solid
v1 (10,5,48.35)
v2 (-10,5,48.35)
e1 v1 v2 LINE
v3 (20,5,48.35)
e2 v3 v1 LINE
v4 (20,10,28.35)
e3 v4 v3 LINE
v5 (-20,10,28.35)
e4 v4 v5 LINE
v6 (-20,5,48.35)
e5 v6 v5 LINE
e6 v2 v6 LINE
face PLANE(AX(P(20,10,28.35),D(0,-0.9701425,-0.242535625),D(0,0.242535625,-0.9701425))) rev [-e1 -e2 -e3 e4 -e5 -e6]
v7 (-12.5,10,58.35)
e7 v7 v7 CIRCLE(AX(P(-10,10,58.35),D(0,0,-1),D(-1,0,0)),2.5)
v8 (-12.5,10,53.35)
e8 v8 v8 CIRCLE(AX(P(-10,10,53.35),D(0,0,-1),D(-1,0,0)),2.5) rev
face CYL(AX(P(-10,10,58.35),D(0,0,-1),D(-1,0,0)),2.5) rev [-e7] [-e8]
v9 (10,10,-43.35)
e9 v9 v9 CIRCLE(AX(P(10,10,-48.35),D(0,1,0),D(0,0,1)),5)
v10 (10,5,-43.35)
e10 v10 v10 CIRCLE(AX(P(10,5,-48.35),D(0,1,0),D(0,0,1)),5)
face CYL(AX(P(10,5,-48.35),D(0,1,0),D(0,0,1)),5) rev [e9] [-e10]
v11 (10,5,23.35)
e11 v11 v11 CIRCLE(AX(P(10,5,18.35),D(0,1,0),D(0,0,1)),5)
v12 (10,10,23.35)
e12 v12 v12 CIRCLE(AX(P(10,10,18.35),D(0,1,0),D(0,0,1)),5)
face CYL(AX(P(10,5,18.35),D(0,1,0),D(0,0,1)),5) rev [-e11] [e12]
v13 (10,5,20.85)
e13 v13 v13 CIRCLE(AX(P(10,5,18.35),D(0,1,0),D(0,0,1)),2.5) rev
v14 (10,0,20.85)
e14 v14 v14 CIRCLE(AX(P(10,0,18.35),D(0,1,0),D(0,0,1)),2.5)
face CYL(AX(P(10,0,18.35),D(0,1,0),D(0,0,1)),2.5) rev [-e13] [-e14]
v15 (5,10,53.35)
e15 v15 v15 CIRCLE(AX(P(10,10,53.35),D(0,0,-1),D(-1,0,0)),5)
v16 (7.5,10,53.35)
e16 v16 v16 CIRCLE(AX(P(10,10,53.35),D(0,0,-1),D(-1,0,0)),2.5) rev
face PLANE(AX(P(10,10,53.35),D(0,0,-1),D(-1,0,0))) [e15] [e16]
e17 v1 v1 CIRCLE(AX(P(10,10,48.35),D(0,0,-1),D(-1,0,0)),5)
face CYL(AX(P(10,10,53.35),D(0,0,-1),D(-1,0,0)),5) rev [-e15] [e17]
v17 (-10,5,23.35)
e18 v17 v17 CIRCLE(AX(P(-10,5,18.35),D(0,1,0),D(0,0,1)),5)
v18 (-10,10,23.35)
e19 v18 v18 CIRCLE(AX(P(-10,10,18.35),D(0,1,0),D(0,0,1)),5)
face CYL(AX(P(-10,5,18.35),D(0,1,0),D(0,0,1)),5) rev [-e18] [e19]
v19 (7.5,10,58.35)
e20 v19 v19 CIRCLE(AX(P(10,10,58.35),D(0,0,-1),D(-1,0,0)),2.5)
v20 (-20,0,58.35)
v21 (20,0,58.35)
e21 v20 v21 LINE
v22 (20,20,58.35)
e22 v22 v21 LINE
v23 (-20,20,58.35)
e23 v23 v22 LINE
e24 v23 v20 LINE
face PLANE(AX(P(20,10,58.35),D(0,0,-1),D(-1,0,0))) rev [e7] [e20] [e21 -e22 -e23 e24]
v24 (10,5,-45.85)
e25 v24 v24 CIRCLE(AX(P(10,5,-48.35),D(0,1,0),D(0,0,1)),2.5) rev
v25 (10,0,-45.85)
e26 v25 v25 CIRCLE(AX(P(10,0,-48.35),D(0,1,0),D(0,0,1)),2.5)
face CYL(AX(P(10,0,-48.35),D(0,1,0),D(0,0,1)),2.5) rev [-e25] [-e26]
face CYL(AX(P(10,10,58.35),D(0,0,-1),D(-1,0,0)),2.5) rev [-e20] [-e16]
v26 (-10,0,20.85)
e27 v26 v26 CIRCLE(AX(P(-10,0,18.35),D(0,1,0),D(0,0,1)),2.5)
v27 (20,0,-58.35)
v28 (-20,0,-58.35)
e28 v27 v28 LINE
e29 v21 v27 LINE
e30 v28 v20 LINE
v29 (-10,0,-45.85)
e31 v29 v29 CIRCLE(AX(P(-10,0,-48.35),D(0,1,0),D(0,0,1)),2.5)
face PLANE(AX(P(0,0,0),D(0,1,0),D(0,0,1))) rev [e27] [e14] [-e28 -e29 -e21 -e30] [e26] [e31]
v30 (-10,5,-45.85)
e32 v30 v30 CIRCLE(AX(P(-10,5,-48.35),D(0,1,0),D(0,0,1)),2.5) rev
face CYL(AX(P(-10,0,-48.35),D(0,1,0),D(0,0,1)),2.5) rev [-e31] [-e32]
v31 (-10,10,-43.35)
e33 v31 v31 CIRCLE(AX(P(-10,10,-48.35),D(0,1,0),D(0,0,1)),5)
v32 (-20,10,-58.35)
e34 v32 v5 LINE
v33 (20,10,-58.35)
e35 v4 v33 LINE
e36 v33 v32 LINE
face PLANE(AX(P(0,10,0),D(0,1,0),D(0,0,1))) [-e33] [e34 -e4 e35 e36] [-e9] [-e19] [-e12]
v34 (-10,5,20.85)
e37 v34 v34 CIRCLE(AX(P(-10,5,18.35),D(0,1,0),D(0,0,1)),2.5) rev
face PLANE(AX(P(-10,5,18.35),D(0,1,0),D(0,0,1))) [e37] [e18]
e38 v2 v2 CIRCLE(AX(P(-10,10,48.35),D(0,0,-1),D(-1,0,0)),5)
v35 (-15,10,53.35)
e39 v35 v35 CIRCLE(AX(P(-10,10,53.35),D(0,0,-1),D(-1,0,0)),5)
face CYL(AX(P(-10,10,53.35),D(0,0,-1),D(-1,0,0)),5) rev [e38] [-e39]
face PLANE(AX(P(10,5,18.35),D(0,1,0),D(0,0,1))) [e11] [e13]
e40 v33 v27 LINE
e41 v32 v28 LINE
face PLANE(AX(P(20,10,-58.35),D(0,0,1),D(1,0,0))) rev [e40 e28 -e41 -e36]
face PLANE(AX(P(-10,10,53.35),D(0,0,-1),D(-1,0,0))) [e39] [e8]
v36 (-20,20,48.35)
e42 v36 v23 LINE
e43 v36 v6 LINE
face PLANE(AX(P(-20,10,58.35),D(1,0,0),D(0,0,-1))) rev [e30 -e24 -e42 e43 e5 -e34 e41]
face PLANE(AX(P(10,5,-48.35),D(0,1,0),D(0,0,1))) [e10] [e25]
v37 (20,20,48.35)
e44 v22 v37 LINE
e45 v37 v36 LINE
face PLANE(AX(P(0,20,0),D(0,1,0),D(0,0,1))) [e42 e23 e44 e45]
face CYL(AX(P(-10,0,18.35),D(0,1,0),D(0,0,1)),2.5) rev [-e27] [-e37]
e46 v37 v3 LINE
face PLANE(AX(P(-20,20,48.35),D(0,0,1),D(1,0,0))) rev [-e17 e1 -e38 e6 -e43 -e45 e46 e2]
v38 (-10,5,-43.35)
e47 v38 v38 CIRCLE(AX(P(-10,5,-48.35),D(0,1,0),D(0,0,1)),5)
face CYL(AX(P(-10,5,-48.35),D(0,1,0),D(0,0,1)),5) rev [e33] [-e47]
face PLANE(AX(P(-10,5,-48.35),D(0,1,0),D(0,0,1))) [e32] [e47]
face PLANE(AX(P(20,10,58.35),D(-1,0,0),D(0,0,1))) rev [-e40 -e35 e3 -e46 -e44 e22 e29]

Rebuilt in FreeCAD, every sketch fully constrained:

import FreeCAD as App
import Part
import Sketcher

V = App.Vector

doc = App.newDocument("Part")
body = doc.addObject("PartDesign::Body", "Body")

# Sketch on XZ plane
sketch1 = body.newObject("Sketcher::SketchObject", "Sketch")
sketch1.AttachmentSupport = (doc.getObject("XZ_Plane"), [""])
sketch1.MapMode = "FlatFace"
sketch1.addGeometry([
    Part.LineSegment(V(-20, -58.35, 0), V(-20, 58.35, 0)),
    Part.LineSegment(V(-20, 58.35, 0), V(20, 58.35, 0)),
    Part.LineSegment(V(20, 58.35, 0), V(20, -58.35, 0)),
    Part.LineSegment(V(20, -58.35, 0), V(-20, -58.35, 0)),
], False)
sketch1.addConstraint([
    Sketcher.Constraint("Coincident", 0, 2, 1, 1),
    Sketcher.Constraint("Coincident", 1, 2, 2, 1),
    Sketcher.Constraint("Coincident", 2, 2, 3, 1),
    Sketcher.Constraint("Coincident", 3, 2, 0, 1),
    Sketcher.Constraint("Vertical", 0),
    Sketcher.Constraint("Horizontal", 1),
    Sketcher.Constraint("Vertical", 2),
    Sketcher.Constraint("Horizontal", 3),
    Sketcher.Constraint("Symmetric", 0, 2, 2, 2, -1, 1),
    Sketcher.Constraint("DistanceX", 1, 1, 1, 2, 40.0),
    Sketcher.Constraint("DistanceY", 0, 1, 0, 2, 116.7),
])
pad1 = body.newObject("PartDesign::Pad", "Pad")
pad1.Profile = sketch1
pad1.Length = 10
pad1.Reversed = True

# Sketch on XZ plane
sketch2 = body.newObject("Sketcher::SketchObject", "Sketch001")
sketch2.AttachmentSupport = (doc.getObject("XZ_Plane"), [""])
sketch2.MapMode = "FlatFace"
sketch2.AttachmentOffset = App.Placement(V(0, 0, -10), App.Rotation())
sketch2.addGeometry([
    Part.LineSegment(V(-20, 48.35, 0), V(-20, 58.35, 0)),
    Part.LineSegment(V(-20, 58.35, 0), V(20, 58.35, 0)),
    Part.LineSegment(V(20, 58.35, 0), V(20, 48.35, 0)),
    Part.LineSegment(V(20, 48.35, 0), V(-20, 48.35, 0)),
], False)
sketch2.addConstraint([
    Sketcher.Constraint("Coincident", 0, 2, 1, 1),
    Sketcher.Constraint("Coincident", 1, 2, 2, 1),
    Sketcher.Constraint("Coincident", 2, 2, 3, 1),
    Sketcher.Constraint("Coincident", 3, 2, 0, 1),
    Sketcher.Constraint("Vertical", 0),
    Sketcher.Constraint("Horizontal", 1),
    Sketcher.Constraint("Vertical", 2),
    Sketcher.Constraint("Horizontal", 3),
    Sketcher.Constraint("DistanceX", 1, 1, 1, 2, 40.0),
    Sketcher.Constraint("DistanceY", 0, 1, 0, 2, 10.0),
    Sketcher.Constraint("DistanceX", 0, 2, -1, 1, 20.0),
    Sketcher.Constraint("DistanceY", -1, 1, 0, 2, 58.35),
])
pad2 = body.newObject("PartDesign::Pad", "Pad001")
pad2.Profile = sketch2
pad2.Length = 10
pad2.Reversed = True

# Sketch on XZ plane
sketch3 = body.newObject("Sketcher::SketchObject", "Sketch002")
sketch3.AttachmentSupport = (doc.getObject("XZ_Plane"), [""])
sketch3.MapMode = "FlatFace"
sketch3.AttachmentOffset = App.Placement(V(0, 0, -10), App.Rotation())
sketch3.addGeometry([
    Part.Circle(V(-10, -48.35, 0), V(0, 0, 1), 2.5),
    Part.Circle(V(10, -48.35, 0), V(0, 0, 1), 2.5),
    Part.Circle(V(10, 18.35, 0), V(0, 0, 1), 2.5),
    Part.Circle(V(-10, 18.35, 0), V(0, 0, 1), 2.5),
], False)
sketch3.addConstraint([
    Sketcher.Constraint("Equal", 0, 1),
    Sketcher.Constraint("Equal", 1, 2),
    Sketcher.Constraint("Equal", 2, 3),
    Sketcher.Constraint("Symmetric", 0, 3, 1, 3, -2),
    Sketcher.Constraint("Symmetric", 2, 3, 3, 3, -2),
    Sketcher.Constraint("Vertical", 1, 3, 2, 3),
    Sketcher.Constraint("Diameter", 0, 5.0),
    Sketcher.Constraint("DistanceX", 0, 3, -1, 1, 10.0),
    Sketcher.Constraint("DistanceY", 1, 3, 2, 3, 66.7),
    Sketcher.Constraint("DistanceY", 0, 3, -1, 1, 48.35),
])
pocket1 = body.newObject("PartDesign::Pocket", "Pocket")
pocket1.Profile = sketch3
pocket1.Type = "ThroughAll"
pocket1.Midplane = True

# Sketch on XZ plane
sketch4 = body.newObject("Sketcher::SketchObject", "Sketch003")
sketch4.AttachmentSupport = (doc.getObject("XZ_Plane"), [""])
sketch4.MapMode = "FlatFace"
sketch4.AttachmentOffset = App.Placement(V(0, 0, -10), App.Rotation())
sketch4.addGeometry([
    Part.Circle(V(10, -48.35, 0), V(0, 0, 1), 5),
    Part.Circle(V(-10, -48.35, 0), V(0, 0, 1), 5),
    Part.Circle(V(10, 18.35, 0), V(0, 0, 1), 5),
    Part.Circle(V(-10, 18.35, 0), V(0, 0, 1), 5),
], False)
sketch4.addConstraint([
    Sketcher.Constraint("Equal", 0, 1),
    Sketcher.Constraint("Equal", 1, 2),
    Sketcher.Constraint("Equal", 2, 3),
    Sketcher.Constraint("Symmetric", 0, 3, 1, 3, -2),
    Sketcher.Constraint("Symmetric", 2, 3, 3, 3, -2),
    Sketcher.Constraint("Vertical", 0, 3, 2, 3),
    Sketcher.Constraint("Diameter", 0, 10.0),
    Sketcher.Constraint("DistanceX", -1, 1, 0, 3, 10.0),
    Sketcher.Constraint("DistanceY", 0, 3, 2, 3, 66.7),
    Sketcher.Constraint("DistanceY", 0, 3, -1, 1, 48.35),
])
pocket2 = body.newObject("PartDesign::Pocket", "Pocket001")
pocket2.Profile = sketch4
pocket2.Length = 5
pocket2.Reversed = True

# Sketch on YZ plane
sketch5 = body.newObject("Sketcher::SketchObject", "Sketch004")
sketch5.AttachmentSupport = (doc.getObject("YZ_Plane"), [""])
sketch5.MapMode = "FlatFace"
sketch5.AttachmentOffset = App.Placement(V(0, 0, -20), App.Rotation())
sketch5.addGeometry([
    Part.LineSegment(V(10, 28.35, 0), V(5, 48.35, 0)),
    Part.LineSegment(V(5, 48.35, 0), V(10, 48.35, 0)),
    Part.LineSegment(V(10, 48.35, 0), V(10, 28.35, 0)),
], False)
sketch5.addConstraint([
    Sketcher.Constraint("Coincident", 0, 2, 1, 1),
    Sketcher.Constraint("Coincident", 1, 2, 2, 1),
    Sketcher.Constraint("Coincident", 2, 2, 0, 1),
    Sketcher.Constraint("Horizontal", 1),
    Sketcher.Constraint("Vertical", 2),
    Sketcher.Constraint("DistanceX", 1, 1, 1, 2, 5.0),
    Sketcher.Constraint("DistanceY", 2, 2, 2, 1, 20.0),
    Sketcher.Constraint("DistanceX", -1, 1, 0, 2, 5.0),
    Sketcher.Constraint("DistanceY", -1, 1, 0, 2, 48.35),
])
pocket3 = body.newObject("PartDesign::Pocket", "Pocket002")
pocket3.Profile = sketch5
pocket3.Type = "ThroughAll"
pocket3.Midplane = True

# Sketch on XY plane
sketch6 = body.newObject("Sketcher::SketchObject", "Sketch005")
sketch6.AttachmentSupport = (doc.getObject("XY_Plane"), [""])
sketch6.MapMode = "FlatFace"
sketch6.AttachmentOffset = App.Placement(V(0, 0, 48.35), App.Rotation())
sketch6.addGeometry([
    Part.Circle(V(10, 10, 0), V(0, 0, 1), 2.5),
    Part.Circle(V(-10, 10, 0), V(0, 0, 1), 2.5),
], False)
sketch6.addConstraint([
    Sketcher.Constraint("Equal", 0, 1),
    Sketcher.Constraint("Symmetric", 0, 3, 1, 3, -2),
    Sketcher.Constraint("Diameter", 0, 5.0),
    Sketcher.Constraint("DistanceX", -1, 1, 0, 3, 10.0),
    Sketcher.Constraint("DistanceY", -1, 1, 0, 3, 10.0),
])
pocket4 = body.newObject("PartDesign::Pocket", "Pocket003")
pocket4.Profile = sketch6
pocket4.Type = "ThroughAll"
pocket4.Reversed = True

# Sketch on XY plane
sketch7 = body.newObject("Sketcher::SketchObject", "Sketch006")
sketch7.AttachmentSupport = (doc.getObject("XY_Plane"), [""])
sketch7.MapMode = "FlatFace"
sketch7.AttachmentOffset = App.Placement(V(0, 0, 48.35), App.Rotation())
sketch7.addGeometry([
    Part.Circle(V(10, 10, 0), V(0, 0, 1), 5),
    Part.Circle(V(-10, 10, 0), V(0, 0, 1), 5),
], False)
sketch7.addConstraint([
    Sketcher.Constraint("Equal", 0, 1),
    Sketcher.Constraint("Symmetric", 0, 3, 1, 3, -2),
    Sketcher.Constraint("Diameter", 0, 10.0),
    Sketcher.Constraint("DistanceX", -1, 1, 0, 3, 10.0),
    Sketcher.Constraint("DistanceY", -1, 1, 0, 3, 10.0),
])
pocket5 = body.newObject("PartDesign::Pocket", "Pocket004")
pocket5.Profile = sketch7
pocket5.Length = 5
pocket5.Reversed = True

doc.recompute()
